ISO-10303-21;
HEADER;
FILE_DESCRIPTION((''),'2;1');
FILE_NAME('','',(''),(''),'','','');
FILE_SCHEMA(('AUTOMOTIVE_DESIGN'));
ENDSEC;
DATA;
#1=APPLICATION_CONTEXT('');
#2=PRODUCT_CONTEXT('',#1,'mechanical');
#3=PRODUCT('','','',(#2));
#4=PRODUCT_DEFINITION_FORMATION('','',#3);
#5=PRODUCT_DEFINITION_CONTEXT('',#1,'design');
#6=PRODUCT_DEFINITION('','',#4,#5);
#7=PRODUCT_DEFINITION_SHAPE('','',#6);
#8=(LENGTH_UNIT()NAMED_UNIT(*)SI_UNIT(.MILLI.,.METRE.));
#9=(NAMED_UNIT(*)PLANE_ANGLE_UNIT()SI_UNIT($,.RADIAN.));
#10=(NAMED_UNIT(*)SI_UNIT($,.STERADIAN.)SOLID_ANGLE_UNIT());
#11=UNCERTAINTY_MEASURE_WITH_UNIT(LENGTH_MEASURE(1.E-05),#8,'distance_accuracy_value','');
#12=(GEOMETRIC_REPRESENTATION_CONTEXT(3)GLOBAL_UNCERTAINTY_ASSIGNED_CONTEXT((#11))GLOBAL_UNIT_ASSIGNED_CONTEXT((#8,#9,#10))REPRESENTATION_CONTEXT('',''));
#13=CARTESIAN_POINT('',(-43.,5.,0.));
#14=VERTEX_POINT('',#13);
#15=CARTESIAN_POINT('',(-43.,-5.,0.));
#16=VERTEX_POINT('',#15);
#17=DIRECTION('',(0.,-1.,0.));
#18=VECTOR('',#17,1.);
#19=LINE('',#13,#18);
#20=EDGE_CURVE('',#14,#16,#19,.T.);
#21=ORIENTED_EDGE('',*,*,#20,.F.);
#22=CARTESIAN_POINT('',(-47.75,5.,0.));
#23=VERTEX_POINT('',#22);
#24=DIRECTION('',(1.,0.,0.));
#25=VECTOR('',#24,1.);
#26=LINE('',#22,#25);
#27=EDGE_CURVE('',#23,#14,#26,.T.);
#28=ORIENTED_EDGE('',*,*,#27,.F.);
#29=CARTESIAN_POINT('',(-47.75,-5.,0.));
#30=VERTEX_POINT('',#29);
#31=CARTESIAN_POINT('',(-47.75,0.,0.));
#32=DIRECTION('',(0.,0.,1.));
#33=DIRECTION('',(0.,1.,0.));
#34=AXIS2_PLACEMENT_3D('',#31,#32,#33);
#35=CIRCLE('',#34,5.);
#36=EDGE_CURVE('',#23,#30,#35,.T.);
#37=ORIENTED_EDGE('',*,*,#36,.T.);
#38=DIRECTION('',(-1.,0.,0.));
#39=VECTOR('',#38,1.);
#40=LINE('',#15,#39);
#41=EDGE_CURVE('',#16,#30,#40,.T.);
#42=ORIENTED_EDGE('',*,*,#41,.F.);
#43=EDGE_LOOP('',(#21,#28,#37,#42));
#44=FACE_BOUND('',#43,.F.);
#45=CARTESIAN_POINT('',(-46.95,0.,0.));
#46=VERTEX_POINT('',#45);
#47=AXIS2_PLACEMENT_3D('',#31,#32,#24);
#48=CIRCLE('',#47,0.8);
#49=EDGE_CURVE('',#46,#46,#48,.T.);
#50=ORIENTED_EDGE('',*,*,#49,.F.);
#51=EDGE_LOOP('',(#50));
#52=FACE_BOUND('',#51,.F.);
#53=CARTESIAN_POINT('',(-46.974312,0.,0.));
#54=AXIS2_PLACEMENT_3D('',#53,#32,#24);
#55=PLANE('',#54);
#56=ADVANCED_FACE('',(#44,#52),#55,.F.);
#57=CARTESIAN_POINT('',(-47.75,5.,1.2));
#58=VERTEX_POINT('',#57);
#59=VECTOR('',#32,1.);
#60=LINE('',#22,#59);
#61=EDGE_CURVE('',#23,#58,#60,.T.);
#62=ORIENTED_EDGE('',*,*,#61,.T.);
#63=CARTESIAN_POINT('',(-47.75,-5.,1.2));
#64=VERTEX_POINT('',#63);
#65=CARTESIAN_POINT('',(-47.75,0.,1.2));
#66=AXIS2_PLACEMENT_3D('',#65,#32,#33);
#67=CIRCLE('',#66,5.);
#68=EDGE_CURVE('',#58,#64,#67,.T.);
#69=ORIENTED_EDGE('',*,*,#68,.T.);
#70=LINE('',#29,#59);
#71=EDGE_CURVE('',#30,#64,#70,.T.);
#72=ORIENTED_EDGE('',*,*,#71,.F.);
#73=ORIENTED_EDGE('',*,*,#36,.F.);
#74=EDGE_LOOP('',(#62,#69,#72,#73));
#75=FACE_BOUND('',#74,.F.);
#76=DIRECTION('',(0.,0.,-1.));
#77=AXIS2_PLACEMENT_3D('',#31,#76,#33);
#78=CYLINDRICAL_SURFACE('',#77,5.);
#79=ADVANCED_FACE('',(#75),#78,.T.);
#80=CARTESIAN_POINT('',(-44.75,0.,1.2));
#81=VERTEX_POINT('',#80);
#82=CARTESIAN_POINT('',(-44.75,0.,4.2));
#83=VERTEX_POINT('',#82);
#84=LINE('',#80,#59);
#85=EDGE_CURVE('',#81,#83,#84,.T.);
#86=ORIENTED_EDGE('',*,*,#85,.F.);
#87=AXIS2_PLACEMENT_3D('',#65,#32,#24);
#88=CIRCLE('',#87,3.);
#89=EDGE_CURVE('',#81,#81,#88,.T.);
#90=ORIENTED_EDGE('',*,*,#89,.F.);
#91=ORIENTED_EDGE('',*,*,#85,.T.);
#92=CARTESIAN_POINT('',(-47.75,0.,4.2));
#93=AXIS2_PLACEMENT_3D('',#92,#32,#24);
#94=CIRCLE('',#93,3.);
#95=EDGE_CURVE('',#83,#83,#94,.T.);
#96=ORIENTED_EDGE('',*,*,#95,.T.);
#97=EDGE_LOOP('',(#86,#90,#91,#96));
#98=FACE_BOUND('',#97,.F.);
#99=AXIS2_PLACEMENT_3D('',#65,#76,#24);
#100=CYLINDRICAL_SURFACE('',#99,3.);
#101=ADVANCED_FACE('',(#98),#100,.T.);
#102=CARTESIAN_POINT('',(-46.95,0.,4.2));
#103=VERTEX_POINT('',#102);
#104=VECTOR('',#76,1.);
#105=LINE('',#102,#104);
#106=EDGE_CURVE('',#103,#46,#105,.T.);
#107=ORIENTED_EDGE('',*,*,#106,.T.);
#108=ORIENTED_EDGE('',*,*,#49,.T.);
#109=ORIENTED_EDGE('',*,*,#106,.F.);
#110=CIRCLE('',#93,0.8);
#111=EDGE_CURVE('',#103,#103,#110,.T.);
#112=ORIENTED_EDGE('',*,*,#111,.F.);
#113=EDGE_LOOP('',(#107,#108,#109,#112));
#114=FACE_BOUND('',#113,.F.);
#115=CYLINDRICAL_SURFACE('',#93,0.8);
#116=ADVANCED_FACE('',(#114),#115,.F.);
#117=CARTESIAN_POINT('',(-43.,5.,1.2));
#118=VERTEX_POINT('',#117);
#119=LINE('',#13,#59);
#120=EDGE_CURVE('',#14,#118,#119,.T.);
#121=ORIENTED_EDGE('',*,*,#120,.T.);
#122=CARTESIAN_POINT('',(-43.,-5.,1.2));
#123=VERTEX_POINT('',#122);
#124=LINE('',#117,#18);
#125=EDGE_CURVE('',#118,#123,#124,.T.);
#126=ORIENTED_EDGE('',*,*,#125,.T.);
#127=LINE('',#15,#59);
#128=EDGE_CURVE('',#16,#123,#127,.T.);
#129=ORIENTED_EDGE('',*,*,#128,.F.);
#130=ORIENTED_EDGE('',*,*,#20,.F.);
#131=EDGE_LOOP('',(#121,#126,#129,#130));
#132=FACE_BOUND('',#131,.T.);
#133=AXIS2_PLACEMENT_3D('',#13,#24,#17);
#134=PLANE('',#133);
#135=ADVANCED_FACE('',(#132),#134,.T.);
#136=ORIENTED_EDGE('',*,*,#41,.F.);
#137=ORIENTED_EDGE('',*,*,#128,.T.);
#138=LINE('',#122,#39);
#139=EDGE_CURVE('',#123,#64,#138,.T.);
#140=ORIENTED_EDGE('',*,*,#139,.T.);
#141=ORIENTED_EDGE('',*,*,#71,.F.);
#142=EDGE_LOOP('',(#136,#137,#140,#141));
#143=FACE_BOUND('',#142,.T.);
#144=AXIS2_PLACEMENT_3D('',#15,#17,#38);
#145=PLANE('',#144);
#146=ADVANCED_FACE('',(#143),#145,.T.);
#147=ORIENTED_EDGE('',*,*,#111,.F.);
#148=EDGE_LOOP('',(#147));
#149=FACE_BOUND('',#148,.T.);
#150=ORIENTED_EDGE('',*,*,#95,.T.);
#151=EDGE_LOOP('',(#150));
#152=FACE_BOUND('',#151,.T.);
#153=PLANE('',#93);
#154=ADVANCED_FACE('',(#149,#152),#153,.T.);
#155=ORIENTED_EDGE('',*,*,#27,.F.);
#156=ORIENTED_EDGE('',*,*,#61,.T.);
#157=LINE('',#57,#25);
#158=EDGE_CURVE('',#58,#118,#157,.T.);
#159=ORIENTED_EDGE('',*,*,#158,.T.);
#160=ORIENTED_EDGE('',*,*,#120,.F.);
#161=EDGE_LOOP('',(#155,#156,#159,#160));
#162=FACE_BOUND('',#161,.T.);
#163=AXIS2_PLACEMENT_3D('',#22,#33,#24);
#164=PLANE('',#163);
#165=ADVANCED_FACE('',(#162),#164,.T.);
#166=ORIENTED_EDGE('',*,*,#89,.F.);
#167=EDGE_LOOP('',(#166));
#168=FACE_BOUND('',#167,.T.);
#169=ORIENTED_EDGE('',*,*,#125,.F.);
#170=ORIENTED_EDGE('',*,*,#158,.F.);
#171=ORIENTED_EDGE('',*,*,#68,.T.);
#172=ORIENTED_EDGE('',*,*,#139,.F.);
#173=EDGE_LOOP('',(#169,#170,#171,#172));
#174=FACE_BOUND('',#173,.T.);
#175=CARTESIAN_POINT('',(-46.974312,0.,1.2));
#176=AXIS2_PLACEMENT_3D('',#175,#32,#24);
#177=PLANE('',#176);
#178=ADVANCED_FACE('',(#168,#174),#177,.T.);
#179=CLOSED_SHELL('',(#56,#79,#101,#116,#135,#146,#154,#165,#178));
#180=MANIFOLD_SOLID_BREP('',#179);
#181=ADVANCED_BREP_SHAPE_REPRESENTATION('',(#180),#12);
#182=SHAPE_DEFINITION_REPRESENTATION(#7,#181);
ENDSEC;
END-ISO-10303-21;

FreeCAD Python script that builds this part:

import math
import FreeCAD as App
import Part
import Sketcher
Q = App.Units.Quantity

doc = App.newDocument("Part")
body = doc.addObject("PartDesign::Body", "Body")

sketch1 = body.newObject("Sketcher::SketchObject", "Sketch")
sketch1.AttachmentSupport = (doc.getObject("XY_Plane"), [""])
sketch1.MapMode = "FlatFace"
sketch1.addGeometry(Part.ArcOfCircle(Part.Circle(App.Vector(-47.8, 0, 0), App.Vector(0, 0, 1), 5), math.radians(90), math.radians(270)), False)
sketch1.addGeometry(Part.LineSegment(App.Vector(-47.8, -5, 0), App.Vector(-43, -5, 0)), False)
sketch1.addGeometry(Part.LineSegment(App.Vector(-43, -5, 0), App.Vector(-43, 5, 0)), False)
sketch1.addGeometry(Part.LineSegment(App.Vector(-43, 5, 0), App.Vector(-47.8, 5, 0)), False)
sketch1.addConstraint(Sketcher.Constraint("Tangent", 0, 2, 1, 1))
sketch1.addConstraint(Sketcher.Constraint("Coincident", 1, 2, 2, 1))
sketch1.addConstraint(Sketcher.Constraint("Coincident", 2, 2, 3, 1))
sketch1.addConstraint(Sketcher.Constraint("Tangent", 3, 2, 0, 1))
sketch1.addConstraint(Sketcher.Constraint("Horizontal", 1))
sketch1.addConstraint(Sketcher.Constraint("Vertical", 2))
sketch1.addConstraint(Sketcher.Constraint("Horizontal", 3))
sketch1.addConstraint(Sketcher.Constraint("PointOnObject", 0, 3, -1))
sketch1.addConstraint(Sketcher.Constraint("Radius", 0, Q("5 mm")))
sketch1.addConstraint(Sketcher.Constraint("DistanceX", 1, 2, -1, 1, Q("43 mm")))
sketch1.addConstraint(Sketcher.Constraint("DistanceX", 1, 1, 1, 2, Q("4.75 mm")))
pad1 = body.newObject("PartDesign::Pad", "Pad")
pad1.Profile = sketch1
pad1.Length = 1.2

sketch2 = body.newObject("Sketcher::SketchObject", "Sketch001")
sketch2.AttachmentSupport = (doc.getObject("XY_Plane"), [""])
sketch2.MapMode = "FlatFace"
sketch2.AttachmentOffset = App.Placement(App.Vector(0, 0, 1.2), App.Rotation())
sketch2.addGeometry(Part.Circle(App.Vector(-47.8, 0, 0), App.Vector(0, 0, 1), 3), False)
sketch2.addConstraint(Sketcher.Constraint("PointOnObject", 0, 3, -1))
sketch2.addConstraint(Sketcher.Constraint("Diameter", 0, Q("6 mm")))
sketch2.addConstraint(Sketcher.Constraint("DistanceX", 0, 3, -1, 1, Q("47.75 mm")))
pad2 = body.newObject("PartDesign::Pad", "Pad001")
pad2.Profile = sketch2
pad2.Length = 3

sketch3 = body.newObject("Sketcher::SketchObject", "Sketch002")
sketch3.AttachmentSupport = (doc.getObject("XY_Plane"), [""])
sketch3.MapMode = "FlatFace"
sketch3.AttachmentOffset = App.Placement(App.Vector(0, 0, 4.2), App.Rotation())
sketch3.addGeometry(Part.Circle(App.Vector(-47.8, 0, 0), App.Vector(0, 0, 1), 0.8), False)
sketch3.addConstraint(Sketcher.Constraint("PointOnObject", 0, 3, -1))
sketch3.addConstraint(Sketcher.Constraint("Diameter", 0, Q("1.6 mm")))
sketch3.addConstraint(Sketcher.Constraint("DistanceX", 0, 3, -1, 1, Q("47.75 mm")))
pocket1 = body.newObject("PartDesign::Pocket", "Pocket")
pocket1.Profile = sketch3
pocket1.Length = 5

doc.recompute()
